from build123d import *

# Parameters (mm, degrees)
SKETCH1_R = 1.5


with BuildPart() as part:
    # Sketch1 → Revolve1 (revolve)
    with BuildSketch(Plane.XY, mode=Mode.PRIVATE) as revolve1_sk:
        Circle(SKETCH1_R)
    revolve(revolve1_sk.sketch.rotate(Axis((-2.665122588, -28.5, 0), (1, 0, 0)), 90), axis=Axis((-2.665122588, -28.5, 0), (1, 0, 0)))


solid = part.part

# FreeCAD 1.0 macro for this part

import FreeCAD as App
import Part
import Sketcher
Q = App.Units.Quantity

doc = App.newDocument("Part")
body = doc.addObject("PartDesign::Body", "Body")

# Sketch on XY plane
sketch1 = body.newObject("Sketcher::SketchObject", "Sketch")
sketch1.AttachmentSupport = (doc.getObject("XY_Plane"), [""])
sketch1.MapMode = "FlatFace"
sketch1.addGeometry(Part.Circle(App.Vector(0, 0, 0), App.Vector(0, 0, 1), 1.5), False)
sketch1.addGeometry(Part.LineSegment(App.Vector(0, -28.5, 0), App.Vector(10, -28.5, 0)), True)  # axis
sketch1.addConstraint(Sketcher.Constraint("Horizontal", 1))
sketch1.addConstraint(Sketcher.Constraint("Coincident", 0, 3, -1, 1))
sketch1.addConstraint(Sketcher.Constraint("PointOnObject", 1, 1, -2))
sketch1.addConstraint(Sketcher.Constraint("Diameter", 0, Q("3 mm")))
sketch1.addConstraint(Sketcher.Constraint("DistanceX", 1, 1, 1, 2, Q("10 mm")))
sketch1.addConstraint(Sketcher.Constraint("DistanceY", 1, 1, -1, 1, Q("28.5 mm")))
revolution = body.newObject("PartDesign::Revolution", "Revolution")
revolution.Profile = sketch1
revolution.ReferenceAxis = (sketch1, ["Axis0"])
revolution.Angle = 360

doc.recompute()
